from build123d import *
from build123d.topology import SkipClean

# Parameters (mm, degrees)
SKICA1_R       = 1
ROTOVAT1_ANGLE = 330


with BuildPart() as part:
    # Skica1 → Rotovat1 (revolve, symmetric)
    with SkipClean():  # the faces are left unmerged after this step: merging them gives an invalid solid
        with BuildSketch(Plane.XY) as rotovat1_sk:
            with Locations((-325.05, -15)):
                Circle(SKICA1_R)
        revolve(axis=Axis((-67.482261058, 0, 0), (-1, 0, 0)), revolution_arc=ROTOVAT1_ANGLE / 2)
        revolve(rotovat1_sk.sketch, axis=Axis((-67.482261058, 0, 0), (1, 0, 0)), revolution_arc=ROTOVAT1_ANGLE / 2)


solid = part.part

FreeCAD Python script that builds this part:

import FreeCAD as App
import Part
import Sketcher
from FreeCAD import Vector

doc = App.newDocument("Part")
params = doc.addObject("Spreadsheet::Sheet", "Params")
for row, (alias, value) in enumerate([
    ("sketch1_diameter", "2 mm"),
    ("revolution_angle", "165 deg"),
    ("sketch2_diameter", "2 mm"),
    ("revolution2_angle", "165 deg"),
], start=1):
    params.set(f"A{row}", alias)
    params.set(f"B{row}", "=" + value)
    params.setAlias(f"B{row}", alias)

body = doc.addObject("PartDesign::Body", "Body")

# Sketch on XY plane
sketch1 = doc.addObject("Sketcher::SketchObject", "Sketch")
body.addObject(sketch1)
sketch1.AttachmentSupport = (doc.XY_Plane, [""])
sketch1.MapMode = "FlatFace"
sketch1.addGeometry(Part.Circle(Vector(-325.1, -15, 0), Vector(0, 0, 1), 1), False)
sketch1.addConstraint(Sketcher.Constraint("Diameter", 0, 2.0))
sketch1.addConstraint(Sketcher.Constraint("DistanceY", 0, 3, -1, 1, 15.0))
sketch1.addConstraint(Sketcher.Constraint("DistanceX", 0, 3, -1, 1, 325.05))
sketch1.setExpression("Constraints[0]", "Params.sketch1_diameter")
revolution = doc.addObject("PartDesign::Revolution", "Revolution")
body.addObject(revolution)
revolution.Profile = sketch1
revolution.ReferenceAxis = (sketch1, ["H_Axis"])
revolution.setExpression("Angle", "Params.revolution_angle")
revolution.Reversed = True

# Sketch on XY plane
sketch2 = doc.addObject("Sketcher::SketchObject", "Sketch001")
body.addObject(sketch2)
sketch2.AttachmentSupport = (doc.XY_Plane, [""])
sketch2.MapMode = "FlatFace"
sketch2.addGeometry(Part.Circle(Vector(-325.1, -15, 0), Vector(0, 0, 1), 1), False)
sketch2.addConstraint(Sketcher.Constraint("Diameter", 0, 2.0))
sketch2.addConstraint(Sketcher.Constraint("DistanceY", 0, 3, -1, 1, 15.0))
sketch2.addConstraint(Sketcher.Constraint("DistanceX", 0, 3, -1, 1, 325.05))
sketch2.setExpression("Constraints[0]", "Params.sketch2_diameter")
revolution2 = doc.addObject("PartDesign::Revolution", "Revolution001")
body.addObject(revolution2)
revolution2.Profile = sketch2
revolution2.ReferenceAxis = (sketch2, ["H_Axis"])
revolution2.setExpression("Angle", "Params.revolution2_angle")

doc.recompute()
